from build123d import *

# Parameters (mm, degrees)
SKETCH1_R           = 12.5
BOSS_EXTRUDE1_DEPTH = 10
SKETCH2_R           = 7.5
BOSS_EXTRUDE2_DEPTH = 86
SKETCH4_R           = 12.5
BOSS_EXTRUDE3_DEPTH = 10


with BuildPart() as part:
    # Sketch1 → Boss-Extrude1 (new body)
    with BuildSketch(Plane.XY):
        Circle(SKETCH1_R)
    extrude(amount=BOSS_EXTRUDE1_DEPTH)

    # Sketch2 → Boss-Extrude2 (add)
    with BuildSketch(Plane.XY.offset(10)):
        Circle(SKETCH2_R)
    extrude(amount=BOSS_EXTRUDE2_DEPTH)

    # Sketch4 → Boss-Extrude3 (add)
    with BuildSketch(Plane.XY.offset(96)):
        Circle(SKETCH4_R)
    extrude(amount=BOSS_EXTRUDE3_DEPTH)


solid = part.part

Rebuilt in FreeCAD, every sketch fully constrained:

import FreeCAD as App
import Part
import Sketcher
from FreeCAD import Vector

doc = App.newDocument("Part")
body = doc.addObject("PartDesign::Body", "Body")

sketch1 = doc.addObject("Sketcher::SketchObject", "Sketch")
body.addObject(sketch1)
sketch1.AttachmentSupport = (doc.XY_Plane, [""])
sketch1.MapMode = "FlatFace"
sketch1.addGeometry(Part.Circle(Vector(0, 0, 0), Vector(0, 0, 1), 12), False)
sketch1.addConstraint([
    Sketcher.Constraint("Coincident", 0, 3, -1, 1),
    Sketcher.Constraint("Diameter", 0, 25.0),
])
pad1 = doc.addObject("PartDesign::Pad", "Pad")
body.addObject(pad1)
pad1.Profile = sketch1
pad1.Length = 10

sketch2 = doc.addObject("Sketcher::SketchObject", "Sketch001")
body.addObject(sketch2)
sketch2.AttachmentSupport = (doc.XY_Plane, [""])
sketch2.MapMode = "FlatFace"
sketch2.AttachmentOffset = App.Placement(Vector(0, 0, 10), App.Rotation())
sketch2.addGeometry(Part.Circle(Vector(0, 0, 0), Vector(0, 0, 1), 8), False)
sketch2.addConstraint([
    Sketcher.Constraint("Coincident", 0, 3, -1, 1),
    Sketcher.Constraint("Diameter", 0, 15.0),
])
pad2 = doc.addObject("PartDesign::Pad", "Pad001")
body.addObject(pad2)
pad2.Profile = sketch2
pad2.Length = 86

sketch3 = doc.addObject("Sketcher::SketchObject", "Sketch002")
body.addObject(sketch3)
sketch3.AttachmentSupport = (doc.XY_Plane, [""])
sketch3.MapMode = "FlatFace"
sketch3.AttachmentOffset = App.Placement(Vector(0, 0, 96), App.Rotation())
sketch3.addGeometry(Part.Circle(Vector(0, 0, 0), Vector(0, 0, 1), 12), False)
sketch3.addConstraint([
    Sketcher.Constraint("Coincident", 0, 3, -1, 1),
    Sketcher.Constraint("Diameter", 0, 25.0),
])
pad3 = doc.addObject("PartDesign::Pad", "Pad002")
body.addObject(pad3)
pad3.Profile = sketch3
pad3.Length = 10

doc.recompute()
